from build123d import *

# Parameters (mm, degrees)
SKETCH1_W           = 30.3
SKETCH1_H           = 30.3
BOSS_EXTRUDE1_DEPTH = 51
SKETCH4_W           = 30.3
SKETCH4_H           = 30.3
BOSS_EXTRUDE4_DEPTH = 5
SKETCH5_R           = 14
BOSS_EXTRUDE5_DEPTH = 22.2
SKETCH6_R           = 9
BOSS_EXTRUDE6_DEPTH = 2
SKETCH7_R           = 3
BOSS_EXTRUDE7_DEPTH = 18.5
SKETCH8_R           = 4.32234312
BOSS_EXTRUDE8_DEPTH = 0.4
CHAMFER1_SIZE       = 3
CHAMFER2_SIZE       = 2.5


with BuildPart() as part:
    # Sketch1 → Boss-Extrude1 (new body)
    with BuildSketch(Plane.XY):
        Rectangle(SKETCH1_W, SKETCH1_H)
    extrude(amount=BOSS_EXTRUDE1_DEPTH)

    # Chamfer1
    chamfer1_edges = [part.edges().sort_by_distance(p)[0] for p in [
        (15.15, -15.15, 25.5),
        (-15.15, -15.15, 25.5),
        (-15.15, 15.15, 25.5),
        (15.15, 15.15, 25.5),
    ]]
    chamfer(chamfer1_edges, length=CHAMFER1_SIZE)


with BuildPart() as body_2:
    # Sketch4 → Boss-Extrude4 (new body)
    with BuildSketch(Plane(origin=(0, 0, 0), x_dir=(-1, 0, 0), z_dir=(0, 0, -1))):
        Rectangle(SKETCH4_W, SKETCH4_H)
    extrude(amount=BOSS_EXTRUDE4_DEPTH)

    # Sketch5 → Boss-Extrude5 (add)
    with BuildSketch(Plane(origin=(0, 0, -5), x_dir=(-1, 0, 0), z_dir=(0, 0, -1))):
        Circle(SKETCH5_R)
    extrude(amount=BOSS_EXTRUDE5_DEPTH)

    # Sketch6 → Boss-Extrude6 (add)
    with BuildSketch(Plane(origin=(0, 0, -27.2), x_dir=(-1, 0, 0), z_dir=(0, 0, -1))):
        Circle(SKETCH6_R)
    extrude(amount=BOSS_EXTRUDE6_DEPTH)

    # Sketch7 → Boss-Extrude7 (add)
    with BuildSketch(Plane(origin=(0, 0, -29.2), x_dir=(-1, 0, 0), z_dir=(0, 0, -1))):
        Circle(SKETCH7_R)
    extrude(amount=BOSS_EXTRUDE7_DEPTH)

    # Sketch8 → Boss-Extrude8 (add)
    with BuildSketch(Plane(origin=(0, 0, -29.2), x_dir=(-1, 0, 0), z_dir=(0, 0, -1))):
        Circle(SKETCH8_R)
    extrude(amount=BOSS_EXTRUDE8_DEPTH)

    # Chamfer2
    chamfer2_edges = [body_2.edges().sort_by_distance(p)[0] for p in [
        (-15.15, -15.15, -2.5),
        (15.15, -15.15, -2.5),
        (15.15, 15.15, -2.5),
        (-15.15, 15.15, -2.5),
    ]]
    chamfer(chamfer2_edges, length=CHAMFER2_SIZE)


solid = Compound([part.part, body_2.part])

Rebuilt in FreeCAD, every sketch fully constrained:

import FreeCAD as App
import Part
import Sketcher
Q = App.Units.Quantity


def edges_at(feature, points):
    """Names of the edges that pass closest to the given points."""
    edges = feature.Shape.Edges
    near = lambda p: min(range(len(edges)), key=lambda i: edges[i].distToShape(Part.Vertex(*p))[0])
    return sorted({f"Edge{near(p) + 1}" for p in points})


def add_polygon(sketch, points):
    """Adds a closed chain of lines whose ends are joined by coincident constraints."""
    first, n = sketch.GeometryCount, len(points)
    for a, b in zip(points, points[1:] + points[:1]):
        sketch.addGeometry(Part.LineSegment(App.Vector(*a, 0), App.Vector(*b, 0)), False)
    for i in range(n):
        sketch.addConstraint(Sketcher.Constraint("Coincident", first + i, 2, first + (i + 1) % n, 1))

doc = App.newDocument("Part")
body = doc.addObject("PartDesign::Body", "Body")

sketch1 = doc.addObject("Sketcher::SketchObject", "Sketch")
body.addObject(sketch1)
sketch1.AttachmentSupport = (doc.XY_Plane, [""])
sketch1.MapMode = "FlatFace"
add_polygon(sketch1, [(-15, 15), (-15, -15), (15, -15), (15, 15)])
sketch1.addConstraint(Sketcher.Constraint("Vertical", 0))
sketch1.addConstraint(Sketcher.Constraint("Horizontal", 1))
sketch1.addConstraint(Sketcher.Constraint("Vertical", 2))
sketch1.addConstraint(Sketcher.Constraint("Horizontal", 3))
sketch1.addConstraint(Sketcher.Constraint("Symmetric", 0, 2, 2, 2, -1, 1))
sketch1.addConstraint(Sketcher.Constraint("Equal", 3, 0))
sketch1.addConstraint(Sketcher.Constraint("DistanceX", 1, 1, 1, 2, Q("30.3 mm")))
pad1 = doc.addObject("PartDesign::Pad", "Pad")
body.addObject(pad1)
pad1.Profile = sketch1
pad1.Length = 51
doc.recompute()

chamfer = doc.addObject("PartDesign::Chamfer", "Chamfer")
body.addObject(chamfer)
chamfer.Base = (pad1, edges_at(pad1, [
    (15.15, -15.15, 25.5),
    (-15.15, -15.15, 25.5),
    (-15.15, 15.15, 25.5),
    (15.15, 15.15, 25.5),
]))
chamfer.Size = 3
body2 = doc.addObject("PartDesign::Body", "Body001")

sketch2 = doc.addObject("Sketcher::SketchObject", "Sketch001")
body2.addObject(sketch2)
sketch2.AttachmentSupport = (doc.getObject("XY_Plane001"), [""])
sketch2.MapMode = "FlatFace"
add_polygon(sketch2, [(15, 15), (15, -15), (-15, -15), (-15, 15)])
sketch2.addConstraint(Sketcher.Constraint("Vertical", 0))
sketch2.addConstraint(Sketcher.Constraint("Horizontal", 1))
sketch2.addConstraint(Sketcher.Constraint("Vertical", 2))
sketch2.addConstraint(Sketcher.Constraint("Horizontal", 3))
sketch2.addConstraint(Sketcher.Constraint("Symmetric", 0, 2, 2, 2, -1, 1))
sketch2.addConstraint(Sketcher.Constraint("Equal", 3, 0))
sketch2.addConstraint(Sketcher.Constraint("DistanceX", 1, 2, 1, 1, Q("30.3 mm")))
pad2 = doc.addObject("PartDesign::Pad", "Pad001")
body2.addObject(pad2)
pad2.Profile = sketch2
pad2.Length = 5
pad2.Reversed = True

sketch3 = doc.addObject("Sketcher::SketchObject", "Sketch002")
body2.addObject(sketch3)
sketch3.AttachmentSupport = (doc.getObject("XY_Plane001"), [""])
sketch3.MapMode = "FlatFace"
sketch3.AttachmentOffset = App.Placement(App.Vector(0, 0, -5), App.Rotation())
sketch3.addGeometry(Part.Circle(App.Vector(0, 0, 0), App.Vector(0, 0, 1), 14), False)
sketch3.addConstraint(Sketcher.Constraint("Coincident", 0, 3, -1, 1))
sketch3.addConstraint(Sketcher.Constraint("Diameter", 0, Q("28 mm")))
pad3 = doc.addObject("PartDesign::Pad", "Pad002")
body2.addObject(pad3)
pad3.Profile = sketch3
pad3.Length = 22.2
pad3.Reversed = True

sketch4 = doc.addObject("Sketcher::SketchObject", "Sketch003")
body2.addObject(sketch4)
sketch4.AttachmentSupport = (doc.getObject("XY_Plane001"), [""])
sketch4.MapMode = "FlatFace"
sketch4.AttachmentOffset = App.Placement(App.Vector(0, 0, -27.2), App.Rotation())
sketch4.addGeometry(Part.Circle(App.Vector(0, 0, 0), App.Vector(0, 0, 1), 9), False)
sketch4.addConstraint(Sketcher.Constraint("Coincident", 0, 3, -1, 1))
sketch4.addConstraint(Sketcher.Constraint("Diameter", 0, Q("18 mm")))
pad4 = doc.addObject("PartDesign::Pad", "Pad003")
body2.addObject(pad4)
pad4.Profile = sketch4
pad4.Length = 2
pad4.Reversed = True

sketch5 = doc.addObject("Sketcher::SketchObject", "Sketch004")
body2.addObject(sketch5)
sketch5.AttachmentSupport = (doc.getObject("XY_Plane001"), [""])
sketch5.MapMode = "FlatFace"
sketch5.AttachmentOffset = App.Placement(App.Vector(0, 0, -29.2), App.Rotation())
sketch5.addGeometry(Part.Circle(App.Vector(0, 0, 0), App.Vector(0, 0, 1), 3), False)
sketch5.addConstraint(Sketcher.Constraint("Coincident", 0, 3, -1, 1))
sketch5.addConstraint(Sketcher.Constraint("Diameter", 0, Q("6 mm")))
pad5 = doc.addObject("PartDesign::Pad", "Pad004")
body2.addObject(pad5)
pad5.Profile = sketch5
pad5.Length = 18.5
pad5.Reversed = True

sketch6 = doc.addObject("Sketcher::SketchObject", "Sketch005")
body2.addObject(sketch6)
sketch6.AttachmentSupport = (doc.getObject("XY_Plane001"), [""])
sketch6.MapMode = "FlatFace"
sketch6.AttachmentOffset = App.Placement(App.Vector(0, 0, -29.2), App.Rotation())
sketch6.addGeometry(Part.Circle(App.Vector(0, 0, 0), App.Vector(0, 0, 1), 4.3), False)
sketch6.addConstraint(Sketcher.Constraint("Coincident", 0, 3, -1, 1))
sketch6.addConstraint(Sketcher.Constraint("Diameter", 0, Q("8.644686 mm")))
pad6 = doc.addObject("PartDesign::Pad", "Pad005")
body2.addObject(pad6)
pad6.Profile = sketch6
pad6.Length = 0.4
pad6.Reversed = True
doc.recompute()

chamfer2 = doc.addObject("PartDesign::Chamfer", "Chamfer001")
body2.addObject(chamfer2)
chamfer2.Base = (pad6, edges_at(pad6, [
    (-15.15, -15.15, -2.5),
    (15.15, -15.15, -2.5),
    (15.15, 15.15, -2.5),
    (-15.15, 15.15, -2.5),
]))
chamfer2.Size = 2.5

doc.recompute()
